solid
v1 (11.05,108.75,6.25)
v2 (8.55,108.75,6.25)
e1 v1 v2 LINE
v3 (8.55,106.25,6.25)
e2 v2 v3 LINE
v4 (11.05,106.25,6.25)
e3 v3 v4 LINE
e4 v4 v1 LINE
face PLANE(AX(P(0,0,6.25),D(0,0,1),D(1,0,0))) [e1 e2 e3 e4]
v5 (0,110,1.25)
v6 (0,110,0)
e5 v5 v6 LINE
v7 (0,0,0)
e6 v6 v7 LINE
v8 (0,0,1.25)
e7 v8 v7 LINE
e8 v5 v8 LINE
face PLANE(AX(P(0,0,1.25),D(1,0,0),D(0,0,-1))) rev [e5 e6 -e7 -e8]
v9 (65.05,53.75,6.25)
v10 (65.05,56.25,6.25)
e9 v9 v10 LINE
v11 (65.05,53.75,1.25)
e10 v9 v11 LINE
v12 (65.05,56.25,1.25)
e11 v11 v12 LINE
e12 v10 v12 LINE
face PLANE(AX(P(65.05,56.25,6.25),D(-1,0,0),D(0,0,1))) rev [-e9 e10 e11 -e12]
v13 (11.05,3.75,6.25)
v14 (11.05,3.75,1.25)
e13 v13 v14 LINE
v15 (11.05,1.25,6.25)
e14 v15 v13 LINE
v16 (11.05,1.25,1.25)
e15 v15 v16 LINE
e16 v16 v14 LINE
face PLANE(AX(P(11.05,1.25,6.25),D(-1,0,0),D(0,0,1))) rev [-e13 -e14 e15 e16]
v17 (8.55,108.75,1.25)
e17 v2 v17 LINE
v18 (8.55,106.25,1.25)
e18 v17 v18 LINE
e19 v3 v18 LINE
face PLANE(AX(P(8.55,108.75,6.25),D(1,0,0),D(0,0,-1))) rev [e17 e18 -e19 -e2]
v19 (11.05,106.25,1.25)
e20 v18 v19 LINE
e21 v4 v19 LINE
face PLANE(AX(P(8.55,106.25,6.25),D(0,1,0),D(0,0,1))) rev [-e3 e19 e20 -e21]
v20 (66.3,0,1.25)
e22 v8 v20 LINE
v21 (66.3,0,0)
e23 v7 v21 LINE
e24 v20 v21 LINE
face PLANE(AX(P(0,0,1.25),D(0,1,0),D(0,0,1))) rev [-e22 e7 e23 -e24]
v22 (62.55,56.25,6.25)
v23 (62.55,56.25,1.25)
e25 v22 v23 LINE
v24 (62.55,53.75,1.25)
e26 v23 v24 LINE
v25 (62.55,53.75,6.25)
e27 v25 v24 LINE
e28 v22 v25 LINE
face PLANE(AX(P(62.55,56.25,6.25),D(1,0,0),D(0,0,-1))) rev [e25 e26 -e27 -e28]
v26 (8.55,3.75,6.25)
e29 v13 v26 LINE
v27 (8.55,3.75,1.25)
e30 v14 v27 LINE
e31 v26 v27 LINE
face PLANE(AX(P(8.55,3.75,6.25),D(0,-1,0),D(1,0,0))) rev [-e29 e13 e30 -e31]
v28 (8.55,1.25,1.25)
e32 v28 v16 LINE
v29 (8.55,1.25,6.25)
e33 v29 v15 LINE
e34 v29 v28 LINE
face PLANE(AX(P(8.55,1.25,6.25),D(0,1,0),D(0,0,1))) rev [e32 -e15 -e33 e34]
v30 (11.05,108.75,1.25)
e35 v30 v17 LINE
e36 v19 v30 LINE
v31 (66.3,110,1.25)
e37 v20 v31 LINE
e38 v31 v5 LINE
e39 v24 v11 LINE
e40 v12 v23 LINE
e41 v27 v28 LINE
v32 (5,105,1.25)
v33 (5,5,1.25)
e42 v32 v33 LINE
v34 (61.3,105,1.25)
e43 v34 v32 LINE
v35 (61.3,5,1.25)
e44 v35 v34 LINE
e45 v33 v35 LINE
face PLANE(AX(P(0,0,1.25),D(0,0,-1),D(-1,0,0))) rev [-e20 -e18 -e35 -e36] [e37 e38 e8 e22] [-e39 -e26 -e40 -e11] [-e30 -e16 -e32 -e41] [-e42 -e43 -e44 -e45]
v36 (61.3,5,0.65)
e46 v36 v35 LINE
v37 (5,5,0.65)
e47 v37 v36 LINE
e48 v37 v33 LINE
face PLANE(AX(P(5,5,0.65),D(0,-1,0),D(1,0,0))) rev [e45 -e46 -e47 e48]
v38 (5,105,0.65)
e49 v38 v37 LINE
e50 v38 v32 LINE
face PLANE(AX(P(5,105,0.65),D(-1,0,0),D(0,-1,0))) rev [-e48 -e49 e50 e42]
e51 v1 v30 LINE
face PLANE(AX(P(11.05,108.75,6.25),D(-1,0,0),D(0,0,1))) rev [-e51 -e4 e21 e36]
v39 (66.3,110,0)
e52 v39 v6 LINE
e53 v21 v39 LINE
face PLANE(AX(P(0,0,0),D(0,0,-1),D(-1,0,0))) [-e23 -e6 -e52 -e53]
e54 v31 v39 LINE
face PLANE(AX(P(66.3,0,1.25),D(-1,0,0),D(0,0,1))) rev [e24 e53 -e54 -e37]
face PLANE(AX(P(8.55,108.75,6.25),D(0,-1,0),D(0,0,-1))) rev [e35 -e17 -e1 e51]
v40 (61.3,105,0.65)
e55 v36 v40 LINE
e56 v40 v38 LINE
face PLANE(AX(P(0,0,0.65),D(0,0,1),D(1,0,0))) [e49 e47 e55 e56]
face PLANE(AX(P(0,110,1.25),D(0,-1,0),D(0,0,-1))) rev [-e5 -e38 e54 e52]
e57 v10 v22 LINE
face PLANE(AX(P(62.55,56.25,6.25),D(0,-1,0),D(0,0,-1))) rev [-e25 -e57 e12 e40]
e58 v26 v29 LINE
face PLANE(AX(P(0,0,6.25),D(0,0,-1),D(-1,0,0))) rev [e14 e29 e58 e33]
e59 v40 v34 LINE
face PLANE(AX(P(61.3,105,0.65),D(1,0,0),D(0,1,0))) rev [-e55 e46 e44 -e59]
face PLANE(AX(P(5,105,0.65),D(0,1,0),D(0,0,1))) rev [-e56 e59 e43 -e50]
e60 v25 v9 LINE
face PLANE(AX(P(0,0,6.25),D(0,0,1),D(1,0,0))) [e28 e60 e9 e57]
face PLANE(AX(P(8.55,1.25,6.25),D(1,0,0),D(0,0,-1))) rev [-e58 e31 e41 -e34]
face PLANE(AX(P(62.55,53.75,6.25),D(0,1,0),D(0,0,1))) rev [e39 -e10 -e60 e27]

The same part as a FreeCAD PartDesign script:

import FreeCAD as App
import Part
import Sketcher

V = App.Vector
Q = App.Units.Quantity

doc = App.newDocument("Part")
params = doc.addObject("Spreadsheet::Sheet", "Params")
for row, (alias, value) in enumerate([
    ("sketch1_height", "110 mm"),
    ("sketch1_width", "66.3 mm"),
    ("pad1_length", "1.25 mm"),
    ("sketch2_width", "2.5 mm"),
    ("pad2_length", "5 mm"),
    ("sketch3_height", "100 mm"),
    ("sketch3_width", "56.3 mm"),
    ("pocket1_length", "0.6 mm"),
], start=1):
    params.set(f"A{row}", alias)
    params.set(f"B{row}", "=" + value)
    params.setAlias(f"B{row}", alias)

body = doc.addObject("PartDesign::Body", "Body")

# Sketch on XY plane
sketch1 = doc.addObject("Sketcher::SketchObject", "Sketch")
body.addObject(sketch1)
sketch1.AttachmentSupport = (doc.XY_Plane, [""])
sketch1.MapMode = "FlatFace"
sketch1.addGeometry(Part.LineSegment(V(0, 110, 0), V(0, 0, 0)), False)
sketch1.addGeometry(Part.LineSegment(V(0, 0, 0), V(66, 0, 0)), False)
sketch1.addGeometry(Part.LineSegment(V(66, 0, 0), V(66, 110, 0)), False)
sketch1.addGeometry(Part.LineSegment(V(66, 110, 0), V(0, 110, 0)), False)
sketch1.addConstraint(Sketcher.Constraint("Coincident", 0, 2, 1, 1))
sketch1.addConstraint(Sketcher.Constraint("Coincident", 1, 2, 2, 1))
sketch1.addConstraint(Sketcher.Constraint("Coincident", 2, 2, 3, 1))
sketch1.addConstraint(Sketcher.Constraint("Coincident", 3, 2, 0, 1))
sketch1.addConstraint(Sketcher.Constraint("Vertical", 0))
sketch1.addConstraint(Sketcher.Constraint("Horizontal", 1))
sketch1.addConstraint(Sketcher.Constraint("Vertical", 2))
sketch1.addConstraint(Sketcher.Constraint("Horizontal", 3))
sketch1.addConstraint(Sketcher.Constraint("Coincident", 0, 2, -1, 1))
sketch1.addConstraint(Sketcher.Constraint("DistanceY", 0, 2, 0, 1, Q("110 mm")))
sketch1.addConstraint(Sketcher.Constraint("DistanceX", 1, 1, 1, 2, Q("66.3 mm")))
sketch1.setExpression("Constraints[9]", "Params.sketch1_height")
sketch1.setExpression("Constraints[10]", "Params.sketch1_width")
pad1 = doc.addObject("PartDesign::Pad", "Pad")
body.addObject(pad1)
pad1.Profile = sketch1
pad1.setExpression("Length", "Params.pad1_length")

# Sketch on XY plane
sketch2 = doc.addObject("Sketcher::SketchObject", "Sketch001")
body.addObject(sketch2)
sketch2.AttachmentSupport = (doc.XY_Plane, [""])
sketch2.MapMode = "FlatFace"
sketch2.AttachmentOffset = App.Placement(V(0, 0, 1.25), App.Rotation())
sketch2.addGeometry(Part.LineSegment(V(8.6, 3.8, 0), V(8.6, 1.2, 0)), False)
sketch2.addGeometry(Part.LineSegment(V(8.6, 1.2, 0), V(11.1, 1.2, 0)), False)
sketch2.addGeometry(Part.LineSegment(V(11.1, 1.2, 0), V(11.1, 3.8, 0)), False)
sketch2.addGeometry(Part.LineSegment(V(11.1, 3.8, 0), V(8.6, 3.8, 0)), False)
sketch2.addGeometry(Part.LineSegment(V(8.6, 108.8, 0), V(8.6, 106.2, 0)), False)
sketch2.addGeometry(Part.LineSegment(V(8.6, 106.2, 0), V(11.1, 106.2, 0)), False)
sketch2.addGeometry(Part.LineSegment(V(11.1, 106.2, 0), V(11.1, 108.8, 0)), False)
sketch2.addGeometry(Part.LineSegment(V(11.1, 108.8, 0), V(8.6, 108.8, 0)), False)
sketch2.addGeometry(Part.LineSegment(V(62.5, 56.2, 0), V(62.5, 53.8, 0)), False)
sketch2.addGeometry(Part.LineSegment(V(62.5, 53.8, 0), V(65, 53.8, 0)), False)
sketch2.addGeometry(Part.LineSegment(V(65, 53.8, 0), V(65, 56.2, 0)), False)
sketch2.addGeometry(Part.LineSegment(V(65, 56.2, 0), V(62.5, 56.2, 0)), False)
sketch2.addConstraint(Sketcher.Constraint("Coincident", 0, 2, 1, 1))
sketch2.addConstraint(Sketcher.Constraint("Coincident", 1, 2, 2, 1))
sketch2.addConstraint(Sketcher.Constraint("Coincident", 2, 2, 3, 1))
sketch2.addConstraint(Sketcher.Constraint("Coincident", 3, 2, 0, 1))
sketch2.addConstraint(Sketcher.Constraint("Coincident", 4, 2, 5, 1))
sketch2.addConstraint(Sketcher.Constraint("Coincident", 5, 2, 6, 1))
sketch2.addConstraint(Sketcher.Constraint("Coincident", 6, 2, 7, 1))
sketch2.addConstraint(Sketcher.Constraint("Coincident", 7, 2, 4, 1))
sketch2.addConstraint(Sketcher.Constraint("Coincident", 8, 2, 9, 1))
sketch2.addConstraint(Sketcher.Constraint("Coincident", 9, 2, 10, 1))
sketch2.addConstraint(Sketcher.Constraint("Coincident", 10, 2, 11, 1))
sketch2.addConstraint(Sketcher.Constraint("Coincident", 11, 2, 8, 1))
sketch2.addConstraint(Sketcher.Constraint("Vertical", 0))
sketch2.addConstraint(Sketcher.Constraint("Horizontal", 1))
sketch2.addConstraint(Sketcher.Constraint("Vertical", 2))
sketch2.addConstraint(Sketcher.Constraint("Horizontal", 3))
sketch2.addConstraint(Sketcher.Constraint("Vertical", 4))
sketch2.addConstraint(Sketcher.Constraint("Horizontal", 5))
sketch2.addConstraint(Sketcher.Constraint("Vertical", 6))
sketch2.addConstraint(Sketcher.Constraint("Horizontal", 7))
sketch2.addConstraint(Sketcher.Constraint("Vertical", 8))
sketch2.addConstraint(Sketcher.Constraint("Horizontal", 9))
sketch2.addConstraint(Sketcher.Constraint("Vertical", 10))
sketch2.addConstraint(Sketcher.Constraint("Horizontal", 11))
sketch2.addConstraint(Sketcher.Constraint("Vertical", 3, 2, 4, 2))
sketch2.addConstraint(Sketcher.Constraint("Vertical", 2, 2, 5, 2))
sketch2.addConstraint(Sketcher.Constraint("Equal", 7, 9))
sketch2.addConstraint(Sketcher.Constraint("Equal", 11, 0))
sketch2.addConstraint(Sketcher.Constraint("Equal", 2, 4))
sketch2.addConstraint(Sketcher.Constraint("Equal", 6, 8))
sketch2.addConstraint(Sketcher.Constraint("DistanceX", 1, 1, 1, 2, Q("2.5 mm")))
sketch2.addConstraint(Sketcher.Constraint("DistanceY", 0, 2, 4, 2, Q("105 mm")))
sketch2.addConstraint(Sketcher.Constraint("DistanceY", 2, 2, 8, 2, Q("50 mm")))
sketch2.addConstraint(Sketcher.Constraint("DistanceX", 3, 2, 8, 2, Q("54 mm")))
sketch2.addConstraint(Sketcher.Constraint("DistanceX", -1, 1, 0, 2, Q("8.55 mm")))
sketch2.addConstraint(Sketcher.Constraint("DistanceY", -1, 1, 0, 2, Q("1.25 mm")))
sketch2.setExpression("Constraints[30]", "Params.sketch2_width")
pad2 = doc.addObject("PartDesign::Pad", "Pad001")
body.addObject(pad2)
pad2.Profile = sketch2
pad2.setExpression("Length", "Params.pad2_length")

# Sketch on XY plane
sketch3 = doc.addObject("Sketcher::SketchObject", "Sketch002")
body.addObject(sketch3)
sketch3.AttachmentSupport = (doc.XY_Plane, [""])
sketch3.MapMode = "FlatFace"
sketch3.AttachmentOffset = App.Placement(V(0, 0, 1.25), App.Rotation())
sketch3.addGeometry(Part.LineSegment(V(5, 105, 0), V(5, 5, 0)), False)
sketch3.addGeometry(Part.LineSegment(V(5, 5, 0), V(61, 5, 0)), False)
sketch3.addGeometry(Part.LineSegment(V(61, 5, 0), V(61, 105, 0)), False)
sketch3.addGeometry(Part.LineSegment(V(61, 105, 0), V(5, 105, 0)), False)
sketch3.addConstraint(Sketcher.Constraint("Coincident", 0, 2, 1, 1))
sketch3.addConstraint(Sketcher.Constraint("Coincident", 1, 2, 2, 1))
sketch3.addConstraint(Sketcher.Constraint("Coincident", 2, 2, 3, 1))
sketch3.addConstraint(Sketcher.Constraint("Coincident", 3, 2, 0, 1))
sketch3.addConstraint(Sketcher.Constraint("Vertical", 0))
sketch3.addConstraint(Sketcher.Constraint("Horizontal", 1))
sketch3.addConstraint(Sketcher.Constraint("Vertical", 2))
sketch3.addConstraint(Sketcher.Constraint("Horizontal", 3))
sketch3.addConstraint(Sketcher.Constraint("DistanceY", 0, 2, 0, 1, Q("100 mm")))
sketch3.addConstraint(Sketcher.Constraint("DistanceX", 1, 1, 1, 2, Q("56.3 mm")))
sketch3.addConstraint(Sketcher.Constraint("DistanceX", -1, 1, 0, 2, Q("5 mm")))
sketch3.addConstraint(Sketcher.Constraint("DistanceY", -1, 1, 0, 2, Q("5 mm")))
sketch3.setExpression("Constraints[8]", "Params.sketch3_height")
sketch3.setExpression("Constraints[9]", "Params.sketch3_width")
pocket1 = doc.addObject("PartDesign::Pocket", "Pocket")
body.addObject(pocket1)
pocket1.Profile = sketch3
pocket1.setExpression("Length", "Params.pocket1_length")

doc.recompute()
